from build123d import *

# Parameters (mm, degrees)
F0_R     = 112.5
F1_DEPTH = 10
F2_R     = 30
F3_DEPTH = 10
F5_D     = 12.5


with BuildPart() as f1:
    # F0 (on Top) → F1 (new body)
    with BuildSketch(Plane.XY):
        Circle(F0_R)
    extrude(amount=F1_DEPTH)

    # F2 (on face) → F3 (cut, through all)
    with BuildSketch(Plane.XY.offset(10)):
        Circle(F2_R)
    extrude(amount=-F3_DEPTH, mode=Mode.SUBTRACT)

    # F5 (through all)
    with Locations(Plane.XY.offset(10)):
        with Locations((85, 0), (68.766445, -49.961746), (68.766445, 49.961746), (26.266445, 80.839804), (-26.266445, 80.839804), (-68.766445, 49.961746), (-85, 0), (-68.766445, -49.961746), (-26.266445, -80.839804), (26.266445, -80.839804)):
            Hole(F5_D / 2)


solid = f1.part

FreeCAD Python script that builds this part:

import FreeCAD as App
import Part
import Sketcher
Q = App.Units.Quantity

doc = App.newDocument("Part")
body = doc.addObject("PartDesign::Body", "Body")

# Sketch on XY plane
sketch1 = body.newObject("Sketcher::SketchObject", "Sketch")
sketch1.AttachmentSupport = (doc.getObject("XY_Plane"), [""])
sketch1.MapMode = "FlatFace"
sketch1.addGeometry(Part.Circle(App.Vector(0, 0, 0), App.Vector(0, 0, 1), 112), False)
sketch1.addConstraint(Sketcher.Constraint("Coincident", 0, 3, -1, 1))
sketch1.addConstraint(Sketcher.Constraint("Diameter", 0, Q("225 mm")))
pad1 = body.newObject("PartDesign::Pad", "Pad")
pad1.Profile = sketch1
pad1.Length = 10

# Sketch on XY plane
sketch2 = body.newObject("Sketcher::SketchObject", "Sketch001")
sketch2.AttachmentSupport = (doc.getObject("XY_Plane"), [""])
sketch2.MapMode = "FlatFace"
sketch2.AttachmentOffset = App.Placement(App.Vector(0, 0, 10), App.Rotation())
sketch2.addGeometry(Part.Circle(App.Vector(0, 0, 0), App.Vector(0, 0, 1), 30), False)
sketch2.addConstraint(Sketcher.Constraint("Coincident", 0, 3, -1, 1))
sketch2.addConstraint(Sketcher.Constraint("Diameter", 0, Q("60 mm")))
pocket1 = body.newObject("PartDesign::Pocket", "Pocket")
pocket1.Profile = sketch2
pocket1.Type = "ThroughAll"

# Sketch on XY plane
sketch3 = body.newObject("Sketcher::SketchObject", "Sketch002")
sketch3.AttachmentSupport = (doc.getObject("XY_Plane"), [""])
sketch3.MapMode = "FlatFace"
sketch3.AttachmentOffset = App.Placement(App.Vector(0, 0, 10), App.Rotation())
sketch3.addGeometry(Part.Circle(App.Vector(85, 0, 0), App.Vector(0, 0, 1), 6), False)
sketch3.addGeometry(Part.Circle(App.Vector(69, -50, 0), App.Vector(0, 0, 1), 6), False)
sketch3.addGeometry(Part.Circle(App.Vector(69, 50, 0), App.Vector(0, 0, 1), 6), False)
sketch3.addGeometry(Part.Circle(App.Vector(26, 81, 0), App.Vector(0, 0, 1), 6), False)
sketch3.addGeometry(Part.Circle(App.Vector(-26, 81, 0), App.Vector(0, 0, 1), 6), False)
sketch3.addGeometry(Part.Circle(App.Vector(-69, 50, 0), App.Vector(0, 0, 1), 6), False)
sketch3.addGeometry(Part.Circle(App.Vector(-85, 0, 0), App.Vector(0, 0, 1), 6), False)
sketch3.addGeometry(Part.Circle(App.Vector(-69, -50, 0), App.Vector(0, 0, 1), 6), False)
sketch3.addGeometry(Part.Circle(App.Vector(-26, -81, 0), App.Vector(0, 0, 1), 6), False)
sketch3.addGeometry(Part.Circle(App.Vector(26, -81, 0), App.Vector(0, 0, 1), 6), False)
sketch3.addConstraint(Sketcher.Constraint("Equal", 0, 1))
sketch3.addConstraint(Sketcher.Constraint("Equal", 1, 2))
sketch3.addConstraint(Sketcher.Constraint("Equal", 2, 3))
sketch3.addConstraint(Sketcher.Constraint("Equal", 3, 4))
sketch3.addConstraint(Sketcher.Constraint("Equal", 4, 5))
sketch3.addConstraint(Sketcher.Constraint("Equal", 5, 6))
sketch3.addConstraint(Sketcher.Constraint("Equal", 6, 7))
sketch3.addConstraint(Sketcher.Constraint("Equal", 7, 8))
sketch3.addConstraint(Sketcher.Constraint("Equal", 8, 9))
sketch3.addConstraint(Sketcher.Constraint("Symmetric", 1, 3, 5, 3, -1, 1))
sketch3.addConstraint(Sketcher.Constraint("Symmetric", 0, 3, 6, 3, -1, 1))
sketch3.addConstraint(Sketcher.Constraint("Symmetric", 2, 3, 7, 3, -1, 1))
sketch3.addConstraint(Sketcher.Constraint("Symmetric", 3, 3, 8, 3, -1, 1))
sketch3.addConstraint(Sketcher.Constraint("Symmetric", 4, 3, 9, 3, -1, 1))
sketch3.addConstraint(Sketcher.Constraint("Symmetric", 3, 3, 4, 3, -2))
sketch3.addConstraint(Sketcher.Constraint("Symmetric", 2, 3, 5, 3, -2))
sketch3.addConstraint(Sketcher.Constraint("PointOnObject", 0, 3, -1))
sketch3.addConstraint(Sketcher.Constraint("Diameter", 0, Q("12.5 mm")))
sketch3.addConstraint(Sketcher.Constraint("DistanceX", -1, 1, 0, 3, Q("85 mm")))
sketch3.addConstraint(Sketcher.Constraint("DistanceX", 3, 3, 2, 3, Q("42.5 mm")))
sketch3.addConstraint(Sketcher.Constraint("DistanceY", 1, 3, 2, 3, Q("99.923492 mm")))
sketch3.addConstraint(Sketcher.Constraint("DistanceY", 2, 3, 3, 3, Q("30.878058 mm")))
sketch3.addConstraint(Sketcher.Constraint("DistanceX", 4, 3, 3, 3, Q("52.53289 mm")))
doc.recompute()
hole = body.newObject("PartDesign::Hole", "Hole")
hole.Profile = sketch3
hole.ThreadType = "None"
hole.Diameter = 12.5
hole.DepthType = "ThroughAll"

doc.recompute()
